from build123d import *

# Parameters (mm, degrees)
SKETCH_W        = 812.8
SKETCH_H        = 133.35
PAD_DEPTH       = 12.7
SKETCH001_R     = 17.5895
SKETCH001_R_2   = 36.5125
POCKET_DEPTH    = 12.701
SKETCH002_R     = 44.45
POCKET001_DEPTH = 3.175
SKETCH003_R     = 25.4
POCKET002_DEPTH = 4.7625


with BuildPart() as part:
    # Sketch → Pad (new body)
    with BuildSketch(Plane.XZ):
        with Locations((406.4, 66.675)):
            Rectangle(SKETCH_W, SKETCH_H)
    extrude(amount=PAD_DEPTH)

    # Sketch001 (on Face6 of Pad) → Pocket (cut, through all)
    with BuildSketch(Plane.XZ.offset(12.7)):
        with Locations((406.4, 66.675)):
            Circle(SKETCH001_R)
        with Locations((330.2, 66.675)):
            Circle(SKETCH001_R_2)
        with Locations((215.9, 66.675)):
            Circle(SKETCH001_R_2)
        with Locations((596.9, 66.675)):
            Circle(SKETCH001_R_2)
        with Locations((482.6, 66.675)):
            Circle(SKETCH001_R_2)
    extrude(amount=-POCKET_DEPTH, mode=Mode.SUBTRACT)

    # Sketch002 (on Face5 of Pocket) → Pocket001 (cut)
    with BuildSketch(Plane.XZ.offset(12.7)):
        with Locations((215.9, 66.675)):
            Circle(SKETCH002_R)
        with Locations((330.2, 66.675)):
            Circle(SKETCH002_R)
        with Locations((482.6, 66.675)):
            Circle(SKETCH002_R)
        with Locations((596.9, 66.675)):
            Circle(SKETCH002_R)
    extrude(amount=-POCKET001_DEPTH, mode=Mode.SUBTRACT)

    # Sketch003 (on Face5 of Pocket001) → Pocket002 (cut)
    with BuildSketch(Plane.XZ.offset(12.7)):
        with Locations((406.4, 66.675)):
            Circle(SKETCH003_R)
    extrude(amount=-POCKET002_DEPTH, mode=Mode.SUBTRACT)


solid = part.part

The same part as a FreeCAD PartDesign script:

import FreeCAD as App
import Part
import Sketcher
Q = App.Units.Quantity


def add_polygon(sketch, points):
    """Adds a closed chain of lines whose ends are joined by coincident constraints."""
    first, n = sketch.GeometryCount, len(points)
    for a, b in zip(points, points[1:] + points[:1]):
        sketch.addGeometry(Part.LineSegment(App.Vector(*a, 0), App.Vector(*b, 0)), False)
    for i in range(n):
        sketch.addConstraint(Sketcher.Constraint("Coincident", first + i, 2, first + (i + 1) % n, 1))

doc = App.newDocument("Part")
body = doc.addObject("PartDesign::Body", "Body")

# Sketch on XZ plane
sketch1 = body.newObject("Sketcher::SketchObject", "Sketch")
sketch1.AttachmentSupport = (doc.getObject("XZ_Plane"), [""])
sketch1.MapMode = "FlatFace"
add_polygon(sketch1, [(0, 133), (0, 0), (813, 0), (813, 133)])  # lines 0-3
sketch1.addConstraint([
    Sketcher.Constraint("Vertical", 0),
    Sketcher.Constraint("Horizontal", 1),
    Sketcher.Constraint("Vertical", 2),
    Sketcher.Constraint("Horizontal", 3),
    Sketcher.Constraint("Coincident", 0, 2, -1, 1),
    Sketcher.Constraint("DistanceX", 1, 1, 1, 2, Q("32 in")),
    Sketcher.Constraint("DistanceY", 0, 2, 0, 1, Q("5.25 in")),
])
pad1 = body.newObject("PartDesign::Pad", "Pad")
pad1.Profile = sketch1
pad1.Length = Q("0.5 in")

# Sketch on XZ plane
sketch2 = body.newObject("Sketcher::SketchObject", "Sketch001")
sketch2.AttachmentSupport = (doc.getObject("XZ_Plane"), [""])
sketch2.MapMode = "FlatFace"
sketch2.AttachmentOffset = App.Placement(App.Vector(0, 0, 0.5 * 25.4), App.Rotation())
sketch2.addGeometry([
    Part.Circle(App.Vector(406, 67, 0), App.Vector(0, 0, 1), 18),  # 0
    Part.Circle(App.Vector(330, 67, 0), App.Vector(0, 0, 1), 37),  # 1
    Part.Circle(App.Vector(216, 67, 0), App.Vector(0, 0, 1), 37),  # 2
    Part.Circle(App.Vector(597, 67, 0), App.Vector(0, 0, 1), 37),  # 3
    Part.Circle(App.Vector(483, 67, 0), App.Vector(0, 0, 1), 37),  # 4
], False)
sketch2.addConstraint([
    Sketcher.Constraint("Equal", 1, 2),
    Sketcher.Constraint("Equal", 2, 3),
    Sketcher.Constraint("Equal", 3, 4),
    Sketcher.Constraint("Horizontal", 0, 3, 1, 3),
    Sketcher.Constraint("Horizontal", 1, 3, 2, 3),
    Sketcher.Constraint("Horizontal", 2, 3, 3, 3),
    Sketcher.Constraint("Horizontal", 3, 3, 4, 3),
    Sketcher.Constraint("Diameter", 0, Q("1.385 in")),
    Sketcher.Constraint("Diameter", 1, Q("2.875 in")),
    Sketcher.Constraint("DistanceX", -1, 1, 0, 3, Q("16 in")),
    Sketcher.Constraint("DistanceX", -1, 1, 1, 3, Q("13 in")),
    Sketcher.Constraint("DistanceX", -1, 1, 4, 3, Q("19 in")),
    Sketcher.Constraint("DistanceX", 2, 3, 3, 3, Q("15 in")),
    Sketcher.Constraint("DistanceX", -1, 1, 2, 3, Q("8.5 in")),
    Sketcher.Constraint("DistanceY", -1, 1, 0, 3, Q("2.625 in")),
])
pocket1 = body.newObject("PartDesign::Pocket", "Pocket")
pocket1.Profile = sketch2
pocket1.Type = "ThroughAll"

# Sketch on XZ plane
sketch3 = body.newObject("Sketcher::SketchObject", "Sketch002")
sketch3.AttachmentSupport = (doc.getObject("XZ_Plane"), [""])
sketch3.MapMode = "FlatFace"
sketch3.AttachmentOffset = App.Placement(App.Vector(0, 0, 0.5 * 25.4), App.Rotation())
sketch3.addGeometry([
    Part.Circle(App.Vector(216, 67, 0), App.Vector(0, 0, 1), 44),
    Part.Circle(App.Vector(330, 67, 0), App.Vector(0, 0, 1), 44),
    Part.Circle(App.Vector(483, 67, 0), App.Vector(0, 0, 1), 44),
    Part.Circle(App.Vector(597, 67, 0), App.Vector(0, 0, 1), 44),
], False)
sketch3.addConstraint([
    Sketcher.Constraint("Equal", 0, 1),
    Sketcher.Constraint("Equal", 1, 2),
    Sketcher.Constraint("Equal", 2, 3),
    Sketcher.Constraint("Horizontal", 0, 3, 1, 3),
    Sketcher.Constraint("Horizontal", 1, 3, 2, 3),
    Sketcher.Constraint("Horizontal", 2, 3, 3, 3),
    Sketcher.Constraint("Diameter", 0, Q("3.5 in")),
    Sketcher.Constraint("DistanceX", -1, 1, 1, 3, Q("13 in")),
    Sketcher.Constraint("DistanceX", -1, 1, 2, 3, Q("19 in")),
    Sketcher.Constraint("DistanceX", 0, 3, 3, 3, Q("15 in")),
    Sketcher.Constraint("DistanceX", -1, 1, 0, 3, Q("8.5 in")),
    Sketcher.Constraint("DistanceY", -1, 1, 0, 3, Q("2.625 in")),
])
pocket2 = body.newObject("PartDesign::Pocket", "Pocket001")
pocket2.Profile = sketch3
pocket2.Length = Q("0.125 in")

# Sketch on XZ plane
sketch4 = body.newObject("Sketcher::SketchObject", "Sketch003")
sketch4.AttachmentSupport = (doc.getObject("XZ_Plane"), [""])
sketch4.MapMode = "FlatFace"
sketch4.AttachmentOffset = App.Placement(App.Vector(0, 0, 0.5 * 25.4), App.Rotation())
sketch4.addGeometry(Part.Circle(App.Vector(406, 67, 0), App.Vector(0, 0, 1), 25), False)
sketch4.addConstraint([
    Sketcher.Constraint("Diameter", 0, Q("2 in")),
    Sketcher.Constraint("DistanceX", -1, 1, 0, 3, Q("16 in")),
    Sketcher.Constraint("DistanceY", -1, 1, 0, 3, Q("2.625 in")),
])
pocket3 = body.newObject("PartDesign::Pocket", "Pocket002")
pocket3.Profile = sketch4
pocket3.Length = Q("0.1875 in")

doc.recompute()
